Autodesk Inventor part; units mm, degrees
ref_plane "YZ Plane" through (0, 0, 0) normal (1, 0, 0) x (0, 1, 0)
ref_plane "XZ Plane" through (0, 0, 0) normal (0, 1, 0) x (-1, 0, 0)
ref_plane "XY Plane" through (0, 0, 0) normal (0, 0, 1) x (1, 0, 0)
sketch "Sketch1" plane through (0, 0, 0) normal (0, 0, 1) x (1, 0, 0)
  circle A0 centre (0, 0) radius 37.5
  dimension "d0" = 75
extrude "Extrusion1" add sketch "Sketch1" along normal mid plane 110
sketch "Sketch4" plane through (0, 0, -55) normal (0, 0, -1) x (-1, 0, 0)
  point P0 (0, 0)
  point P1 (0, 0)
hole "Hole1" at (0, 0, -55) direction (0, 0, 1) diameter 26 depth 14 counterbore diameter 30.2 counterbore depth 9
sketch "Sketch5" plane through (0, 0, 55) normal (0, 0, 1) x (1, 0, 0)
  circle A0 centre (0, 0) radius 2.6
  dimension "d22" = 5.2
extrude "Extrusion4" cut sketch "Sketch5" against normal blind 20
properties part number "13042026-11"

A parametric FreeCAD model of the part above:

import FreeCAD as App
import Part
import Sketcher
from FreeCAD import Vector
Q = App.Units.Quantity

doc = App.newDocument("Part")
params = doc.addObject("Spreadsheet::Sheet", "Params")
for row, (alias, value) in enumerate([
    ("sketch1_diameter", "75 mm"),
    ("pad1_length", "110 mm"),
    ("sketch2_diameter", "26 mm"),
    ("hole_diameter", "26 mm"),
    ("hole_depth", "14 mm"),
    ("hole_cbore_diameter", "30.2 mm"),
    ("hole_cbore_depth", "9 mm"),
    ("sketch3_diameter", "5.2 mm"),
    ("pocket1_length", "20 mm"),
], start=1):
    params.set(f"A{row}", alias)
    params.set(f"B{row}", "=" + value)
    params.setAlias(f"B{row}", alias)

body = doc.addObject("PartDesign::Body", "Body")

# Sketch on XY plane
sketch1 = body.newObject("Sketcher::SketchObject", "Sketch")
sketch1.AttachmentSupport = (doc.getObject("XY_Plane"), [""])
sketch1.MapMode = "FlatFace"
sketch1.addGeometry(Part.Circle(Vector(0, 0, 0), Vector(0, 0, 1), 38), False)
sketch1.addConstraint([
    Sketcher.Constraint("Coincident", 0, 3, -1, 1),
    Sketcher.Constraint("Diameter", 0, Q("75 mm")),
])
sketch1.setExpression("Constraints[1]", "Params.sketch1_diameter")
pad1 = body.newObject("PartDesign::Pad", "Pad")
pad1.Profile = sketch1
pad1.setExpression("Length", "Params.pad1_length")
pad1.Midplane = True

# Sketch on XY plane
sketch2 = body.newObject("Sketcher::SketchObject", "Sketch001")
sketch2.AttachmentSupport = (doc.getObject("XY_Plane"), [""])
sketch2.MapMode = "FlatFace"
sketch2.AttachmentOffset = App.Placement(Vector(0, 0, -55), App.Rotation())
sketch2.addGeometry(Part.Circle(Vector(0, 0, 0), Vector(0, 0, 1), 13), False)
sketch2.addConstraint([
    Sketcher.Constraint("Coincident", 0, 3, -1, 1),
    Sketcher.Constraint("Diameter", 0, Q("26 mm")),
])
sketch2.setExpression("Constraints[1]", "Params.sketch2_diameter")
doc.recompute()
hole = body.newObject("PartDesign::Hole", "Hole")
hole.Profile = sketch2
hole.ThreadType = "None"
hole.setExpression("Diameter", "Params.hole_diameter")
hole.DepthType = "Dimension"
hole.setExpression("Depth", "Params.hole_depth")
hole.DrillPoint = "Flat"
hole.HoleCutType = "Counterbore"
hole.setExpression("HoleCutDiameter", "Params.hole_cbore_diameter")
hole.setExpression("HoleCutDepth", "Params.hole_cbore_depth")
hole.Reversed = True

# Sketch on XY plane
sketch3 = body.newObject("Sketcher::SketchObject", "Sketch002")
sketch3.AttachmentSupport = (doc.getObject("XY_Plane"), [""])
sketch3.MapMode = "FlatFace"
sketch3.AttachmentOffset = App.Placement(Vector(0, 0, 55), App.Rotation())
sketch3.addGeometry(Part.Circle(Vector(0, 0, 0), Vector(0, 0, 1), 2.6), False)
sketch3.addConstraint([
    Sketcher.Constraint("Coincident", 0, 3, -1, 1),
    Sketcher.Constraint("Diameter", 0, Q("5.2 mm")),
])
sketch3.setExpression("Constraints[1]", "Params.sketch3_diameter")
pocket1 = body.newObject("PartDesign::Pocket", "Pocket")
pocket1.Profile = sketch3
pocket1.setExpression("Length", "Params.pocket1_length")

doc.recompute()
